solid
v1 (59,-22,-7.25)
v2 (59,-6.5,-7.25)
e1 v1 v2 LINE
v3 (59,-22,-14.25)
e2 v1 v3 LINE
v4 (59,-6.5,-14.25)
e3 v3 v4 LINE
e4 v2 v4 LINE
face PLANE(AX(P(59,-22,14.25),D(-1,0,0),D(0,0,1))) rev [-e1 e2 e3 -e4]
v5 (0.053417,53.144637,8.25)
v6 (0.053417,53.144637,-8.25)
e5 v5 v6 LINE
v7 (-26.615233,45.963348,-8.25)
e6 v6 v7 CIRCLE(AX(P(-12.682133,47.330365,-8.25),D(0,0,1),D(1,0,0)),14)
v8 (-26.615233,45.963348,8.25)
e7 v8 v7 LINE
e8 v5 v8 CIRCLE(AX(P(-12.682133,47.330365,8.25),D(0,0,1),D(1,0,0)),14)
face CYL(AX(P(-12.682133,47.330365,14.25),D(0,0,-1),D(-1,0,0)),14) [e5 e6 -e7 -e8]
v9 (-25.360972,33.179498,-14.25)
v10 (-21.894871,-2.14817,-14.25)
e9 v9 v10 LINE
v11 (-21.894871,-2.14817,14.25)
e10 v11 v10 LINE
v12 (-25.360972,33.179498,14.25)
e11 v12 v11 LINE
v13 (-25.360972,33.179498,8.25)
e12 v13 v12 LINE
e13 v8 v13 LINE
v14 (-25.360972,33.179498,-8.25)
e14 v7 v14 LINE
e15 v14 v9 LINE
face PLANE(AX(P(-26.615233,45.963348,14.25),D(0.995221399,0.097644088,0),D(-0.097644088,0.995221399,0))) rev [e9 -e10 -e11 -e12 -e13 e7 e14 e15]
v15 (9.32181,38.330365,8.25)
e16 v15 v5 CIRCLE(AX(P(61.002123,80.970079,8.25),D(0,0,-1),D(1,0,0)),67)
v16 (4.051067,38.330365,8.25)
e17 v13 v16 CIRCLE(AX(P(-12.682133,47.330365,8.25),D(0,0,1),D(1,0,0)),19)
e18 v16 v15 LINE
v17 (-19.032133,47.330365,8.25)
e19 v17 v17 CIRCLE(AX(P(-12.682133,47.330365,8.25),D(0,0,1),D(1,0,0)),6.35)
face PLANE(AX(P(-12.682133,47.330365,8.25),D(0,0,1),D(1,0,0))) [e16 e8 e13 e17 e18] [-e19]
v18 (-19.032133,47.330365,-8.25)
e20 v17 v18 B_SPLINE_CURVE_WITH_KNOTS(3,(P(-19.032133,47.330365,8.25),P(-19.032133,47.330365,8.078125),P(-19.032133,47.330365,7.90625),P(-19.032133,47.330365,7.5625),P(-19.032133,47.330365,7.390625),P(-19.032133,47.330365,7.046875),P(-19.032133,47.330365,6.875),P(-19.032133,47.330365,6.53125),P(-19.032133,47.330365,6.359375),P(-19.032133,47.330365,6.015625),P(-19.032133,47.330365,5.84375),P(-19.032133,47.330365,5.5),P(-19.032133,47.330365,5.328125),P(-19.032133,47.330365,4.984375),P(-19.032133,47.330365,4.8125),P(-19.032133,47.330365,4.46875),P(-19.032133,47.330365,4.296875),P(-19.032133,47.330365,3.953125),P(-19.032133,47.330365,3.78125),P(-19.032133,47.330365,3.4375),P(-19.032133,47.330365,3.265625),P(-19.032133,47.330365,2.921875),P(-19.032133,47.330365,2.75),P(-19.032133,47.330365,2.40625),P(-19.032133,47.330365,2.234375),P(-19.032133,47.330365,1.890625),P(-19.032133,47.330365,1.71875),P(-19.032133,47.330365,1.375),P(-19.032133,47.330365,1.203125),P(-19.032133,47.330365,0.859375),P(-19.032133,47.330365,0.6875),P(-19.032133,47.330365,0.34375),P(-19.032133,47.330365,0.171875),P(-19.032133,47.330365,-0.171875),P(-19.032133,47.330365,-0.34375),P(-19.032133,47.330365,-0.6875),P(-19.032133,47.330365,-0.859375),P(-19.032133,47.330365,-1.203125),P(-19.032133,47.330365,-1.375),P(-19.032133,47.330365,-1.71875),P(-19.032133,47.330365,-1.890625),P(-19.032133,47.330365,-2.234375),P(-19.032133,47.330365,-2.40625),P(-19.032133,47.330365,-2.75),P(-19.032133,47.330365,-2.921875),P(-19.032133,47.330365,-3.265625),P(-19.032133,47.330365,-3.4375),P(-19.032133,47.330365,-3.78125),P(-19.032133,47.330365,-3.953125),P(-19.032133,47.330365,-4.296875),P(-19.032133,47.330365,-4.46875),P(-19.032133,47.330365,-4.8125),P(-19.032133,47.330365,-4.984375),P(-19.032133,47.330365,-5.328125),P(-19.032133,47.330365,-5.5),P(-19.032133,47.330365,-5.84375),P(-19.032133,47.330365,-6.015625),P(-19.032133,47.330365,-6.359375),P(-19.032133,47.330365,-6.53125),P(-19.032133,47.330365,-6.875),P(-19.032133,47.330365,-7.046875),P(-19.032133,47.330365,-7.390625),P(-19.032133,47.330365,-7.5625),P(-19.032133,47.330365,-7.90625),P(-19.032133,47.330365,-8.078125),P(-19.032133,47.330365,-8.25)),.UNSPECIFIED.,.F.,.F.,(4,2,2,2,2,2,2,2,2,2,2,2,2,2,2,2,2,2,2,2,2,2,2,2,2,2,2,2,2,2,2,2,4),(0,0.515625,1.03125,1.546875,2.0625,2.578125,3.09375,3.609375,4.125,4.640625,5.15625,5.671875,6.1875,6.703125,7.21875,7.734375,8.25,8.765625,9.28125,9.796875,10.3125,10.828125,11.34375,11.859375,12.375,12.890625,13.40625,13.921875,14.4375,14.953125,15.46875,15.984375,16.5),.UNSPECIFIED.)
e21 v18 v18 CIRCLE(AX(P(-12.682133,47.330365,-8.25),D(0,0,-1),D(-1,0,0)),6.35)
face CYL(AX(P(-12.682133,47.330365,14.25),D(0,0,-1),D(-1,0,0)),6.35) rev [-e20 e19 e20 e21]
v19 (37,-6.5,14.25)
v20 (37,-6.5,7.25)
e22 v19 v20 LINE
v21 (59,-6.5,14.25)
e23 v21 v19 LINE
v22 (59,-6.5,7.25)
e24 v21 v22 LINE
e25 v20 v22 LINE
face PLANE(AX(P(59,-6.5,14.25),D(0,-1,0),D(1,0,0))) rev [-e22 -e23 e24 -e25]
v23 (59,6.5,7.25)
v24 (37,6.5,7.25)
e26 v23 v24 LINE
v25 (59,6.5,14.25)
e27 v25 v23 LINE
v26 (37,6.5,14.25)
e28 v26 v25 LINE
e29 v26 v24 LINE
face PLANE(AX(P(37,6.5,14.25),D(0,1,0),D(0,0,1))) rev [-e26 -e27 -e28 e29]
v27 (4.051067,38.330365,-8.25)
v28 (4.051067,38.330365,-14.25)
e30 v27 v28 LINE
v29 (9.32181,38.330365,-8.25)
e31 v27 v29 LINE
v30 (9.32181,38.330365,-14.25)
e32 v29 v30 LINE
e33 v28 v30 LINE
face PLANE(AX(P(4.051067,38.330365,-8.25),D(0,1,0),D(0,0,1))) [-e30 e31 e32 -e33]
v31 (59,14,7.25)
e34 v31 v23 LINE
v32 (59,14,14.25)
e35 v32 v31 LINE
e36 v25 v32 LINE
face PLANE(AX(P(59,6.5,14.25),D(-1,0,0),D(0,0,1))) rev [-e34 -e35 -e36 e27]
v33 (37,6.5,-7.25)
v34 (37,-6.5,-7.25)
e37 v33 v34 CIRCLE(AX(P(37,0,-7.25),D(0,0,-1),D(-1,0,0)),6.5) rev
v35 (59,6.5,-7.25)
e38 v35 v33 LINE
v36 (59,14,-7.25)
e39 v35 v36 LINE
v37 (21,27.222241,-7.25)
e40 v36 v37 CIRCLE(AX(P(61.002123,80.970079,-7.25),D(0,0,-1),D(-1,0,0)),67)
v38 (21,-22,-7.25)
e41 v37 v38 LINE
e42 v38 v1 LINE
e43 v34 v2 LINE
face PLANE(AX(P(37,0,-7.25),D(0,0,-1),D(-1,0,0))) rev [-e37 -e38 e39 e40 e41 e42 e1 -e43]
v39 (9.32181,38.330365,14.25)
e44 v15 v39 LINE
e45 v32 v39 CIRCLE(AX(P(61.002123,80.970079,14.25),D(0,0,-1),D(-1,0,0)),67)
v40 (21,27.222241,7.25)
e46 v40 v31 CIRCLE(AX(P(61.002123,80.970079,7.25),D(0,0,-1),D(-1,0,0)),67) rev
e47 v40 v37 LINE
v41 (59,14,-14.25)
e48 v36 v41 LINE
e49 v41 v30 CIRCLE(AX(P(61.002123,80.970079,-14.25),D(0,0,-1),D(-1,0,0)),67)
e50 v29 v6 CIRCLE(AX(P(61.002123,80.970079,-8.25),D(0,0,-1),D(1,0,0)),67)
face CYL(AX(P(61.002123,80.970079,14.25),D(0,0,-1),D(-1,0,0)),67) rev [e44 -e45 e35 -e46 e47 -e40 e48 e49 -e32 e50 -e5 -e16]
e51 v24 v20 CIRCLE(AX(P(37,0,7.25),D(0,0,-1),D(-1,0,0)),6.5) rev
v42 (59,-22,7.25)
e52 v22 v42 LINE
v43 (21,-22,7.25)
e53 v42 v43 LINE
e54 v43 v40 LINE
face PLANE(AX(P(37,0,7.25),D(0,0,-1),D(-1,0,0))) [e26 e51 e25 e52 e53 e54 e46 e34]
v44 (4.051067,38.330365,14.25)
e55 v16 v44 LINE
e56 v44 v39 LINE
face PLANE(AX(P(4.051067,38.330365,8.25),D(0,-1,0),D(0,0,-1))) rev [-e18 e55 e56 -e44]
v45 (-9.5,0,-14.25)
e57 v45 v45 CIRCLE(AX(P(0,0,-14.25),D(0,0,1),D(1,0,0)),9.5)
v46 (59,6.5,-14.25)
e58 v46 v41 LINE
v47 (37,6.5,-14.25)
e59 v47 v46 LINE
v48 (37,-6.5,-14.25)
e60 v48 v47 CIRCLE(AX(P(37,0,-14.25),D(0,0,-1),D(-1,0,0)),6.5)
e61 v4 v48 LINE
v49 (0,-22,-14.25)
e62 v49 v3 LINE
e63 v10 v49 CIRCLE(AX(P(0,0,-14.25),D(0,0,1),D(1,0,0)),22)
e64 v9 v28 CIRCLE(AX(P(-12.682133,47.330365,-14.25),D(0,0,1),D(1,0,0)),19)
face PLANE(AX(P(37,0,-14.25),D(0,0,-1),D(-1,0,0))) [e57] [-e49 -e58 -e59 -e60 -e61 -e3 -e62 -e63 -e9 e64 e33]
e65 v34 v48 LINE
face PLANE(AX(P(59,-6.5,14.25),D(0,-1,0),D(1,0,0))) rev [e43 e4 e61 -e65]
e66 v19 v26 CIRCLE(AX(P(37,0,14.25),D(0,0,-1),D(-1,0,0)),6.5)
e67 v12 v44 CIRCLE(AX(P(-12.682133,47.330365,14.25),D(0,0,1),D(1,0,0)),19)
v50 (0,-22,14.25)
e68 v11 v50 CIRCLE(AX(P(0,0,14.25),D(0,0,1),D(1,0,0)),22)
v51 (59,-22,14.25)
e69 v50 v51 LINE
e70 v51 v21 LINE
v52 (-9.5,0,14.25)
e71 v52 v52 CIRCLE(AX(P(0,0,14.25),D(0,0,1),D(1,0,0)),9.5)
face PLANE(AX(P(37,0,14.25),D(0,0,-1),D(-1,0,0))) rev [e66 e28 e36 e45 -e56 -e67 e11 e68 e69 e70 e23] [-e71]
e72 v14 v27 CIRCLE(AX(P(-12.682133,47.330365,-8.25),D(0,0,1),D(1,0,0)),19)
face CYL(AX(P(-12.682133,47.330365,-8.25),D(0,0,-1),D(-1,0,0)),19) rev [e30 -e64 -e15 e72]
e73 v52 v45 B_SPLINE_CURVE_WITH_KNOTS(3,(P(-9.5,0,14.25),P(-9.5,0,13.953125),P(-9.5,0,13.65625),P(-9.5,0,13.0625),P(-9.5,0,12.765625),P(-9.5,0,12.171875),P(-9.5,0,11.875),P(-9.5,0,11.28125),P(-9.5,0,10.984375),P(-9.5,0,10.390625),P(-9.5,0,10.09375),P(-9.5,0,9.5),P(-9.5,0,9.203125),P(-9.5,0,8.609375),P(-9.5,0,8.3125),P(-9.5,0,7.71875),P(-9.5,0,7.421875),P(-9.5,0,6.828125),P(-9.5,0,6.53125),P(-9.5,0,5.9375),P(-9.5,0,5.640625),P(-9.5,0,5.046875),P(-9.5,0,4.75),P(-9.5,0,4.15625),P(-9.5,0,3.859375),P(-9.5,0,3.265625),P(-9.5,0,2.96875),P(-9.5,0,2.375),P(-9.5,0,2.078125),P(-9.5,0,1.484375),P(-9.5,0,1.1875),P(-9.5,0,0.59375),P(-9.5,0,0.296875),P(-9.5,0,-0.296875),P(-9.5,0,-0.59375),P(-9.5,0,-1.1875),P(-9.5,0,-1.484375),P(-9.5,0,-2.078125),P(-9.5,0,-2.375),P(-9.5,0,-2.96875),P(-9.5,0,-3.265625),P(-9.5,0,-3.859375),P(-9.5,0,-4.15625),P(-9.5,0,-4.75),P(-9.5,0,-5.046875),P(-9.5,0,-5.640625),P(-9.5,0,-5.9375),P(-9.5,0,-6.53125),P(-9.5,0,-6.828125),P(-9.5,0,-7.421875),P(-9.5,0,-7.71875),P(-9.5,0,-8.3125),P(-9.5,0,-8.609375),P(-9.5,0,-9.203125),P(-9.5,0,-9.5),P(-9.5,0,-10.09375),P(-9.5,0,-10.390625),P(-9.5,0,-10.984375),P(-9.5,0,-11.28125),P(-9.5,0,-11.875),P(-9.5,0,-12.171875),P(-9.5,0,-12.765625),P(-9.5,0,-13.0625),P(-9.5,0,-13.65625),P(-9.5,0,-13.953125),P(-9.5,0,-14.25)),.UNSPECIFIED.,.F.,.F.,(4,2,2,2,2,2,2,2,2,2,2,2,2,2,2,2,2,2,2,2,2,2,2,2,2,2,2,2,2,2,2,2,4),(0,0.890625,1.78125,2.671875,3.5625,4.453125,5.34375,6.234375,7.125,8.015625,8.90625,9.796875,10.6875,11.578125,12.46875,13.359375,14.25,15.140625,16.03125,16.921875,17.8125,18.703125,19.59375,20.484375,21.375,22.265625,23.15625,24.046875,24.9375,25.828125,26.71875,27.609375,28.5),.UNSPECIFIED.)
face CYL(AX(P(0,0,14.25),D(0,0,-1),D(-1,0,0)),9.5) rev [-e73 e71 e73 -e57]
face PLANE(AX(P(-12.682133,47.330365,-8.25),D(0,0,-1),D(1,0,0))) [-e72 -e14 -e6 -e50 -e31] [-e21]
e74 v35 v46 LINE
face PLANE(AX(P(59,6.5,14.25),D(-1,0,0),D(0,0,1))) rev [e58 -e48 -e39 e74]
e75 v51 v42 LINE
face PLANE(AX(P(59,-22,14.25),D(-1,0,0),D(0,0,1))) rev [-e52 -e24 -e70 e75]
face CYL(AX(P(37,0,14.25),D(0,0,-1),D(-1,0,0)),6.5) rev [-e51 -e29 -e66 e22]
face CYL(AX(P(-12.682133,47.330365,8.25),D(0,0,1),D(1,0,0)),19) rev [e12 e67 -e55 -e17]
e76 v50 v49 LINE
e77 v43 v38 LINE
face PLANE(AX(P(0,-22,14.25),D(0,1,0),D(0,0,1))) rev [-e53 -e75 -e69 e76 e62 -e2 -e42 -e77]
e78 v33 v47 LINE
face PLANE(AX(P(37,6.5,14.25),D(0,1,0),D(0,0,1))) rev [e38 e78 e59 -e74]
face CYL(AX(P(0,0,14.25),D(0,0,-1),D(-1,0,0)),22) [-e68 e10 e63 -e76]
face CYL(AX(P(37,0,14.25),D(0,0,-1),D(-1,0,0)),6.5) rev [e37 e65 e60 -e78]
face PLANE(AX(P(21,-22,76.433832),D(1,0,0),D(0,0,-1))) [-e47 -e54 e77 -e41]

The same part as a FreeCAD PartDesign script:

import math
import FreeCAD as App
import Part
import Sketcher
from FreeCAD import Vector

doc = App.newDocument("Part")
params = doc.addObject("Spreadsheet::Sheet", "Params")
for row, (alias, value) in enumerate([
    ("sketch1_diameter", "19 mm"),
    ("sketch1_radius", "22 mm"),
    ("sketch1_radius2", "67 mm"),
    ("sketch1_radius3", "14 mm"),
    ("sketch1_diameter2", "12.7 mm"),
    ("pad1_length", "28.5 mm"),
    ("sketch2_radius", "67 mm"),
    ("sketch2_radius2", "14 mm"),
    ("sketch2_radius3", "19 mm"),
    ("pocket1_length", "6 mm"),
    ("sketch3_radius", "67 mm"),
    ("sketch3_width", "38 mm"),
    ("sketch3_height", "36 mm"),
    ("pocket2_length", "7.25 mm"),
    ("pocket2_length2", "7.25 mm"),
], start=1):
    params.set(f"A{row}", alias)
    params.set(f"B{row}", "=" + value)
    params.setAlias(f"B{row}", alias)

body = doc.addObject("PartDesign::Body", "Body")

sketch1 = body.newObject("Sketcher::SketchObject", "Sketch")
sketch1.AttachmentSupport = (doc.getObject("XY_Plane"), [""])
sketch1.MapMode = "FlatFace"
sketch1.addGeometry([
    Part.LineSegment(Vector(-26.615233, 45.963348, 0), Vector(-21.894871, -2.14817, 0)),
    Part.ArcOfCircle(Part.Circle(Vector(0, 0, 0), Vector(0, 0, 1), 22), math.radians(-174.396477), math.radians(-90)),
    Part.LineSegment(Vector(0, -22, 0), Vector(59, -22, 0)),
    Part.LineSegment(Vector(59, -22, 0), Vector(59, -6.5, 0)),
    Part.LineSegment(Vector(59, -6.5, 0), Vector(37, -6.5, 0)),
    Part.ArcOfCircle(Part.Circle(Vector(37, 0, 0), Vector(0, 0, 1), 6.5), math.radians(90), math.radians(270)),
    Part.LineSegment(Vector(37, 6.5, 0), Vector(59, 6.5, 0)),
    Part.LineSegment(Vector(59, 6.5, 0), Vector(59, 14, 0)),
    Part.ArcOfCircle(Part.Circle(Vector(61.002123, 80.970079, 0), Vector(0, 0, 1), 67), math.radians(-155.461468), math.radians(-91.712392)),
    Part.ArcOfCircle(Part.Circle(Vector(-12.682133, 47.330365, 0), Vector(0, 0, 1), 14), math.radians(24.538532), math.radians(185.603523)),
    Part.Circle(Vector(0, 0, 0), Vector(0, 0, 1), 9.5),
    Part.Circle(Vector(-12.682133, 47.330365, 0), Vector(0, 0, 1), 6.35),
], False)
sketch1.addConstraint([
    Sketcher.Constraint("Coincident", 0, 2, 1, 1),
    Sketcher.Constraint("Coincident", 1, 2, 2, 1),
    Sketcher.Constraint("Coincident", 2, 2, 3, 1),
    Sketcher.Constraint("Coincident", 3, 2, 4, 1),
    Sketcher.Constraint("Coincident", 4, 2, 5, 2),
    Sketcher.Constraint("Coincident", 5, 1, 6, 1),
    Sketcher.Constraint("Coincident", 6, 2, 7, 1),
    Sketcher.Constraint("Coincident", 7, 2, 8, 2),
    Sketcher.Constraint("Coincident", 8, 1, 9, 1),
    Sketcher.Constraint("Coincident", 9, 2, 0, 1),
    Sketcher.Constraint("Horizontal", 2),
    Sketcher.Constraint("Vertical", 3),
    Sketcher.Constraint("Horizontal", 4),
    Sketcher.Constraint("Horizontal", 6),
    Sketcher.Constraint("Vertical", 7),
    Sketcher.Constraint("Coincident", 1, 3, -1, 1),
    Sketcher.Constraint("Coincident", 10, 3, -1, 1),
    Sketcher.Constraint("Coincident", 11, 3, 9, 3),
    Sketcher.Constraint("PointOnObject", 5, 3, -1),
    Sketcher.Constraint("PointOnObject", 1, 2, -2),
    Sketcher.Constraint("Diameter", 10, 19.0),
    Sketcher.Constraint("Radius", 1, 22.0),
    Sketcher.Constraint("Radius", 8, 67.0),
    Sketcher.Constraint("Radius", 9, 14.0),
    Sketcher.Constraint("Diameter", 11, 12.7),
    Sketcher.Constraint("Radius", 5, 6.5),
    Sketcher.Constraint("DistanceX", 2, 1, 2, 2, 59.0),
    Sketcher.Constraint("DistanceX", 4, 2, 4, 1, 22.0),
    Sketcher.Constraint("DistanceX", 6, 1, 6, 2, 22.0),
    Sketcher.Constraint("DistanceY", 7, 1, 7, 2, 7.5),
    Sketcher.Constraint("DistanceX", -1, 1, 5, 3, 37.0),
    Sketcher.Constraint("DistanceX", -1, 1, 5, 1, 37.0),
    Sketcher.Constraint("DistanceX", 9, 2, 11, 3, 13.9331),
    Sketcher.Constraint("DistanceY", -1, 1, 8, 3, 80.970079),
    Sketcher.Constraint("DistanceX", 0, 2, -1, 1, 21.894871),
    Sketcher.Constraint("DistanceY", -1, 1, 9, 2, 45.963348),
    Sketcher.Constraint("DistanceX", 9, 3, 8, 1, 12.735551),
])
sketch1.setExpression("Constraints[20]", "Params.sketch1_diameter")
sketch1.setExpression("Constraints[21]", "Params.sketch1_radius")
sketch1.setExpression("Constraints[22]", "Params.sketch1_radius2")
sketch1.setExpression("Constraints[23]", "Params.sketch1_radius3")
sketch1.setExpression("Constraints[24]", "Params.sketch1_diameter2")
pad1 = body.newObject("PartDesign::Pad", "Pad")
pad1.Profile = sketch1
pad1.setExpression("Length", "Params.pad1_length")
pad1.Midplane = True

sketch2 = body.newObject("Sketcher::SketchObject", "Sketch001")
sketch2.AttachmentSupport = (doc.getObject("XY_Plane"), [""])
sketch2.MapMode = "FlatFace"
sketch2.AttachmentOffset = App.Placement(Vector(0, 0, 14.25), App.Rotation())
sketch2.addGeometry([
    Part.LineSegment(Vector(4, 38, 0), Vector(9, 38, 0)),
    Part.ArcOfCircle(Part.Circle(Vector(61, 81, 0), Vector(0, 0, 1), 67), math.radians(-155.46), math.radians(-140.48)),
    Part.ArcOfCircle(Part.Circle(Vector(-13, 47, 0), Vector(0, 0, 1), 14), math.radians(25), math.radians(186)),
    Part.LineSegment(Vector(-27, 46, 0), Vector(-25, 33, 0)),
    Part.ArcOfCircle(Part.Circle(Vector(-13, 47, 0), Vector(0, 0, 1), 19), math.radians(-132), math.radians(-28)),
], False)
sketch2.addConstraint([
    Sketcher.Constraint("Coincident", 0, 2, 1, 2),
    Sketcher.Constraint("Tangent", 1, 1, 2, 1),
    Sketcher.Constraint("Tangent", 2, 2, 3, 1),
    Sketcher.Constraint("Coincident", 3, 2, 4, 1),
    Sketcher.Constraint("Coincident", 4, 2, 0, 1),
    Sketcher.Constraint("Horizontal", 0),
    Sketcher.Constraint("Coincident", 4, 3, 2, 3),
    Sketcher.Constraint("Radius", 1, 67.0),
    Sketcher.Constraint("Radius", 2, 14.0),
    Sketcher.Constraint("Radius", 4, 19.0),
    Sketcher.Constraint("DistanceY", 0, 2, 2, 3, 9.0),
    Sketcher.Constraint("DistanceX", 2, 2, 2, 3, 13.9331),
    Sketcher.Constraint("DistanceX", 0, 1, 0, 2, 5.270742),
    Sketcher.Constraint("DistanceY", -1, 1, 1, 3, 80.970079),
    Sketcher.Constraint("DistanceX", -1, 1, 0, 2, 9.32181),
])
sketch2.setExpression("Constraints[7]", "Params.sketch2_radius")
sketch2.setExpression("Constraints[8]", "Params.sketch2_radius2")
sketch2.setExpression("Constraints[9]", "Params.sketch2_radius3")
pocket1 = body.newObject("PartDesign::Pocket", "Pocket")
pocket1.Profile = sketch2
pocket1.setExpression("Length", "Params.pocket1_length")
doc.recompute()

mirrored = body.newObject("PartDesign::Mirrored", "Mirrored")
mirrored.Originals = [pocket1]
mirrored.MirrorPlane = (doc.getObject("XY_Plane"), [""])
body.Tip = mirrored

sketch3 = body.newObject("Sketcher::SketchObject", "Sketch002")
sketch3.AttachmentSupport = (doc.getObject("XY_Plane"), [""])
sketch3.MapMode = "FlatFace"
sketch3.addGeometry([
    Part.LineSegment(Vector(21, 27, 0), Vector(21, -22, 0)),
    Part.LineSegment(Vector(21, -22, 0), Vector(59, -22, 0)),
    Part.LineSegment(Vector(59, -22, 0), Vector(59, 14, 0)),
    Part.ArcOfCircle(Part.Circle(Vector(61, 81, 0), Vector(0, 0, 1), 67), math.radians(-127), math.radians(-92)),
], False)
sketch3.addConstraint([
    Sketcher.Constraint("Coincident", 0, 2, 1, 1),
    Sketcher.Constraint("Coincident", 1, 2, 2, 1),
    Sketcher.Constraint("Coincident", 2, 2, 3, 2),
    Sketcher.Constraint("Coincident", 3, 1, 0, 1),
    Sketcher.Constraint("Vertical", 0),
    Sketcher.Constraint("Horizontal", 1),
    Sketcher.Constraint("Vertical", 2),
    Sketcher.Constraint("Radius", 3, 67.0),
    Sketcher.Constraint("DistanceX", 1, 1, 1, 2, 38.0),
    Sketcher.Constraint("DistanceY", 2, 1, 2, 2, 36.0),
    Sketcher.Constraint("DistanceX", -1, 1, 0, 2, 21.0),
    Sketcher.Constraint("DistanceY", 0, 2, -1, 1, 22.0),
    Sketcher.Constraint("DistanceY", 0, 2, 0, 1, 49.222241),
])
sketch3.setExpression("Constraints[7]", "Params.sketch3_radius")
sketch3.setExpression("Constraints[8]", "Params.sketch3_width")
sketch3.setExpression("Constraints[9]", "Params.sketch3_height")
pocket2 = body.newObject("PartDesign::Pocket", "Pocket001")
pocket2.Profile = sketch3
pocket2.Type = "TwoLengths"
pocket2.setExpression("Length", "Params.pocket2_length")
pocket2.setExpression("Length2", "Params.pocket2_length2")
pocket2.Reversed = True

doc.recompute()
